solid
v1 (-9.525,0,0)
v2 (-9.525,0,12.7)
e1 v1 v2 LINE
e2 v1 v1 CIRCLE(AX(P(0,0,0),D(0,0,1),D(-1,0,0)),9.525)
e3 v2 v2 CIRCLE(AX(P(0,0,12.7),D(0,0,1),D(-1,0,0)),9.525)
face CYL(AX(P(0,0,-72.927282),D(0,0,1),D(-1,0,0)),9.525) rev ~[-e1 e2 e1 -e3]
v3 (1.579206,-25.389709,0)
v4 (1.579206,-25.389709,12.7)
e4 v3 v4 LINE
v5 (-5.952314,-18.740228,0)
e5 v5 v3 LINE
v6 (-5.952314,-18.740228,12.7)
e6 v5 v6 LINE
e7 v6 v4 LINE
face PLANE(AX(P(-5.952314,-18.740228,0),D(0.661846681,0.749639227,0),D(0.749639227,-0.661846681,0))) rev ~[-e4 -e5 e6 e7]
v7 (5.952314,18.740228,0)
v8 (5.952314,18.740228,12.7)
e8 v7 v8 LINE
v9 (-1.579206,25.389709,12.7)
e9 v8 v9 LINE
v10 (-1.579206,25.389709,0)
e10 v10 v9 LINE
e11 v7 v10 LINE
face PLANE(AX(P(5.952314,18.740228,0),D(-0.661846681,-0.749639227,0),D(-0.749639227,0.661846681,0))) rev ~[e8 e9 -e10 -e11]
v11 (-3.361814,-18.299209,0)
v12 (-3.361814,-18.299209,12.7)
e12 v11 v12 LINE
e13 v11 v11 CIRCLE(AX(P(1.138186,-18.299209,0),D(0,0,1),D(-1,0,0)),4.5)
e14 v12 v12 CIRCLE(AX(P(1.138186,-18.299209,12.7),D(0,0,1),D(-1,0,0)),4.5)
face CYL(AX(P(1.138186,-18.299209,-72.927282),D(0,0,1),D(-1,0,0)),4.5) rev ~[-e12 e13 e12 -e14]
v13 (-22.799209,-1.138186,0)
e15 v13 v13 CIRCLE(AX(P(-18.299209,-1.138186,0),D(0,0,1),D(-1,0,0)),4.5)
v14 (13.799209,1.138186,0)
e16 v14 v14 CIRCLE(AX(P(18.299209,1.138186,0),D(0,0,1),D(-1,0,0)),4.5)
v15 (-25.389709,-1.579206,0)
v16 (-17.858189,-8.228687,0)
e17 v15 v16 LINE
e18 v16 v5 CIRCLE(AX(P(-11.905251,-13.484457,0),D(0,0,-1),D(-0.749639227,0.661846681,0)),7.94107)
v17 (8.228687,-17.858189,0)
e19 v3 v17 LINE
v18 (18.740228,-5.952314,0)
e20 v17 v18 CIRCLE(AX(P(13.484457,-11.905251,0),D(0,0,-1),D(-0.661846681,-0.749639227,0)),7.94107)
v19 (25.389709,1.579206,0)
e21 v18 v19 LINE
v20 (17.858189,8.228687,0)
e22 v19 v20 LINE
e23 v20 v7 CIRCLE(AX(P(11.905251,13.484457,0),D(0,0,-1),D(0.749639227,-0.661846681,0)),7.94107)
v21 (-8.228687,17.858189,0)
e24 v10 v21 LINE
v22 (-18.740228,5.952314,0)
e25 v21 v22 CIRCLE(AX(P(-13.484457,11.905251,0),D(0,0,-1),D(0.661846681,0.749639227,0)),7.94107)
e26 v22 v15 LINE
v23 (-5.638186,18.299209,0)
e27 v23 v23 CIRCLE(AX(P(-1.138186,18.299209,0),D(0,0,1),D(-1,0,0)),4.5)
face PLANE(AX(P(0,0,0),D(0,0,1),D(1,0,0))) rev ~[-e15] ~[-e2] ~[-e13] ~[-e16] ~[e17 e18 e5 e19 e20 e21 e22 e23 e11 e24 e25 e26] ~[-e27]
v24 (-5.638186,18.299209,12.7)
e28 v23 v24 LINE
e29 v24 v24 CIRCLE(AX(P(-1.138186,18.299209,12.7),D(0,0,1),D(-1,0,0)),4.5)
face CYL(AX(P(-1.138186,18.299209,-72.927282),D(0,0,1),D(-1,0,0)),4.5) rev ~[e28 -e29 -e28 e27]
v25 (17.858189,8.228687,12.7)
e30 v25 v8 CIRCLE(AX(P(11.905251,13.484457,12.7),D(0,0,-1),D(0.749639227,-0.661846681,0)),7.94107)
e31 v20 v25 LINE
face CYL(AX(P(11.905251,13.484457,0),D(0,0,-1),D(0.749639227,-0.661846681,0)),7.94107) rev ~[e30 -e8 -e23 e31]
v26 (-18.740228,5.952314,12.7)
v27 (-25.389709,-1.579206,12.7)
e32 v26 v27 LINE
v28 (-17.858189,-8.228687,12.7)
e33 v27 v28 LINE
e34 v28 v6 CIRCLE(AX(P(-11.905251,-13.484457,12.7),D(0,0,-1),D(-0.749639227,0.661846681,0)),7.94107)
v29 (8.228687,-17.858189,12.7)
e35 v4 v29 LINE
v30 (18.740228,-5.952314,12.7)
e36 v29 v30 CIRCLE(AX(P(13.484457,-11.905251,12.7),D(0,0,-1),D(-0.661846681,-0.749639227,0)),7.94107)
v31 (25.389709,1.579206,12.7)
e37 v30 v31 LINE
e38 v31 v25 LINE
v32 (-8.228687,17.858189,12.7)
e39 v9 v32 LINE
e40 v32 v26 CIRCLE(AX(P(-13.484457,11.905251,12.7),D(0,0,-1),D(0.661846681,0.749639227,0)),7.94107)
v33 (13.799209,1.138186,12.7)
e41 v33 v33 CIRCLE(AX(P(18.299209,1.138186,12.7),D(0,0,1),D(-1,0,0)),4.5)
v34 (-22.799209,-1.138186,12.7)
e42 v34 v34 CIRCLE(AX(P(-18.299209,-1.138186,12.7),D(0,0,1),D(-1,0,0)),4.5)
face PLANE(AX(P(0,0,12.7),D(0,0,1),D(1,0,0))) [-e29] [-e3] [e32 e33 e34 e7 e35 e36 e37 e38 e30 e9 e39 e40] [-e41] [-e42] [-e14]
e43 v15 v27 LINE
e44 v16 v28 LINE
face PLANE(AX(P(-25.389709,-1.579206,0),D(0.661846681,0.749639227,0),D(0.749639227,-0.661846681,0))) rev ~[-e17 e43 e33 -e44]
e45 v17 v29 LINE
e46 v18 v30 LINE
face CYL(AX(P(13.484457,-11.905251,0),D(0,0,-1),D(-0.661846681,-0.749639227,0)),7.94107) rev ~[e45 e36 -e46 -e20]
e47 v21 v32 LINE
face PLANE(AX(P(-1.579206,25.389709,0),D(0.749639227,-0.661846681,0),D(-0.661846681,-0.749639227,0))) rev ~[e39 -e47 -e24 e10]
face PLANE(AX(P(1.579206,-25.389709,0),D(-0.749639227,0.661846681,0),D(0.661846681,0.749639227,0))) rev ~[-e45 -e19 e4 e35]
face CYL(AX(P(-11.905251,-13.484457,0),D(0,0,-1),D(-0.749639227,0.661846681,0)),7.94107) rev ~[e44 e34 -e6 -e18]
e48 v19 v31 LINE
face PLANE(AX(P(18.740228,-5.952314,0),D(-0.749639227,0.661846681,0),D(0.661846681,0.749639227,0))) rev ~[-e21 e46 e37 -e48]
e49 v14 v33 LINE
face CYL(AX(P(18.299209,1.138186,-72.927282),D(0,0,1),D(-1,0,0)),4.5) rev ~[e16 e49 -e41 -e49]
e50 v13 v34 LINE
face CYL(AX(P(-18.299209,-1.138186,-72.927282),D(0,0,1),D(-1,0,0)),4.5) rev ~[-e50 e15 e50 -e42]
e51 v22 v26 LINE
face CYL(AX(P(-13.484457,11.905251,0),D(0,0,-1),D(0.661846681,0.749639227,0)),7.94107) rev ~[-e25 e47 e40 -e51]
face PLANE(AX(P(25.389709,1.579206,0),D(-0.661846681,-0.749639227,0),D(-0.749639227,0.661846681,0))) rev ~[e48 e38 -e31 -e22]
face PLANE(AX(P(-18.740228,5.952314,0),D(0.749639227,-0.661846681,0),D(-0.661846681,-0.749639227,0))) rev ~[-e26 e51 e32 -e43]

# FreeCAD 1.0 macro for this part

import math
import FreeCAD as App
import Part
import Sketcher

V = App.Vector
Q = App.Units.Quantity

doc = App.newDocument("Part")
body = doc.addObject("PartDesign::Body", "Body")

sketch1 = body.newObject("Sketcher::SketchObject", "Sketch")
sketch1.AttachmentSupport = (doc.getObject("XY_Plane"), [""])
sketch1.MapMode = "FlatFace"
sketch1.addGeometry([
    Part.LineSegment(V(5.952314, 18.740228, 0), V(-1.579206, 25.389709, 0)),
    Part.LineSegment(V(-1.579206, 25.389709, 0), V(-8.228687, 17.858189, 0)),
    Part.ArcOfCircle(Part.Circle(V(-13.484457, 11.905251, 0), V(0, 0, 1), 7.94107), math.radians(-131.440864), math.radians(48.559136)),
    Part.LineSegment(V(-18.740228, 5.952314, 0), V(-25.389709, -1.579206, 0)),
    Part.LineSegment(V(-25.389709, -1.579206, 0), V(-17.858189, -8.228687, 0)),
    Part.ArcOfCircle(Part.Circle(V(-11.905251, -13.484457, 0), V(0, 0, 1), 7.94107), math.radians(-41.440864), math.radians(138.559136)),
    Part.LineSegment(V(-5.952314, -18.740228, 0), V(1.579206, -25.389709, 0)),
    Part.LineSegment(V(1.579206, -25.389709, 0), V(8.228687, -17.858189, 0)),
    Part.ArcOfCircle(Part.Circle(V(13.484457, -11.905251, 0), V(0, 0, 1), 7.94107), math.radians(48.559136), math.radians(228.559136)),
    Part.LineSegment(V(18.740228, -5.952314, 0), V(25.389709, 1.579206, 0)),
    Part.LineSegment(V(25.389709, 1.579206, 0), V(17.858189, 8.228687, 0)),
    Part.ArcOfCircle(Part.Circle(V(11.905251, 13.484457, 0), V(0, 0, 1), 7.94107), math.radians(138.559136), math.radians(318.559136)),
], False)
sketch1.addConstraint([
    Sketcher.Constraint("Coincident", 0, 2, 1, 1),
    Sketcher.Constraint("Coincident", 1, 2, 2, 2),
    Sketcher.Constraint("Coincident", 2, 1, 3, 1),
    Sketcher.Constraint("Coincident", 3, 2, 4, 1),
    Sketcher.Constraint("Coincident", 4, 2, 5, 2),
    Sketcher.Constraint("Coincident", 5, 1, 6, 1),
    Sketcher.Constraint("Coincident", 6, 2, 7, 1),
    Sketcher.Constraint("Coincident", 7, 2, 8, 2),
    Sketcher.Constraint("Coincident", 8, 1, 9, 1),
    Sketcher.Constraint("Coincident", 9, 2, 10, 1),
    Sketcher.Constraint("Coincident", 10, 2, 11, 2),
    Sketcher.Constraint("Coincident", 11, 1, 0, 1),
    Sketcher.Constraint("Radius", 2, 7.94107),
    Sketcher.Constraint("Radius", 5, 7.94107),
    Sketcher.Constraint("Radius", 8, 7.94107),
    Sketcher.Constraint("Radius", 11, 7.94107),
    Sketcher.Constraint("DistanceY", 4, 2, 2, 1, 14.181001),
    Sketcher.Constraint("DistanceX", 5, 1, 7, 2, 14.181001),
    Sketcher.Constraint("DistanceY", 8, 1, 10, 2, 14.181001),
    Sketcher.Constraint("DistanceX", 1, 2, 11, 1, 14.181001),
    Sketcher.Constraint("Distance", 0, 10.046859),
    Sketcher.Constraint("Distance", 1, 10.046859),
    Sketcher.Constraint("Distance", 3, 10.046859),
    Sketcher.Constraint("Distance", 4, 10.046859),
    Sketcher.Constraint("Distance", 6, 10.046859),
    Sketcher.Constraint("Distance", 7, 10.046859),
    Sketcher.Constraint("Distance", 9, 10.046859),
    Sketcher.Constraint("Distance", 10, 10.046859),
    Sketcher.Constraint("DistanceY", -1, 1, 2, 3, 11.905251),
    Sketcher.Constraint("DistanceX", 5, 3, -1, 1, 11.905251),
    Sketcher.Constraint("DistanceY", 8, 3, -1, 1, 11.905251),
    Sketcher.Constraint("DistanceX", -1, 1, 11, 3, 11.905251),
    Sketcher.Constraint("DistanceY", -1, 1, 0, 2, 25.389709),
    Sketcher.Constraint("DistanceY", -1, 1, 1, 2, 17.858189),
    Sketcher.Constraint("DistanceX", 2, 1, -1, 1, 18.740228),
    Sketcher.Constraint("DistanceX", 3, 2, -1, 1, 25.389709),
    Sketcher.Constraint("DistanceY", 5, 1, -1, 1, 18.740228),
    Sketcher.Constraint("DistanceY", 6, 2, -1, 1, 25.389709),
    Sketcher.Constraint("DistanceX", -1, 1, 8, 1, 18.740228),
    Sketcher.Constraint("DistanceX", -1, 1, 9, 2, 25.389709),
])
pad1 = body.newObject("PartDesign::Pad", "Pad")
pad1.Profile = sketch1
pad1.Length = Q("0.5 in")

sketch2 = body.newObject("Sketcher::SketchObject", "Sketch001")
sketch2.AttachmentSupport = (doc.getObject("XY_Plane"), [""])
sketch2.MapMode = "FlatFace"
sketch2.addGeometry(Part.Circle(V(0, 0, 0), V(0, 0, 1), 10), False)
sketch2.addConstraint([
    Sketcher.Constraint("Coincident", 0, 3, -1, 1),
    Sketcher.Constraint("Diameter", 0, Q("0.75 in")),
])
doc.recompute()
hole = body.newObject("PartDesign::Hole", "Hole")
hole.Profile = sketch2
hole.ThreadType = "None"
hole.Diameter = Q("0.75 in")
hole.DepthType = "ThroughAll"
hole.Reversed = True

sketch3 = body.newObject("Sketcher::SketchObject", "Sketch002")
sketch3.AttachmentSupport = (doc.getObject("XY_Plane"), [""])
sketch3.MapMode = "FlatFace"
sketch3.addGeometry([
    Part.Circle(V(18.3, 1.1, 0), V(0, 0, 1), 4.5),
    Part.Circle(V(-1.1, 18.3, 0), V(0, 0, 1), 4.5),
    Part.Circle(V(-18.3, -1.1, 0), V(0, 0, 1), 4.5),
    Part.Circle(V(1.1, -18.3, 0), V(0, 0, 1), 4.5),
], False)
sketch3.addConstraint([
    Sketcher.Constraint("Equal", 0, 1),
    Sketcher.Constraint("Equal", 1, 2),
    Sketcher.Constraint("Equal", 2, 3),
    Sketcher.Constraint("Symmetric", 0, 3, 2, 3, -1, 1),
    Sketcher.Constraint("Symmetric", 1, 3, 3, 3, -1, 1),
    Sketcher.Constraint("Diameter", 0, 9.0),
    Sketcher.Constraint("DistanceX", -1, 1, 0, 3, 18.299209),
    Sketcher.Constraint("DistanceY", -1, 1, 1, 3, 18.299209),
    Sketcher.Constraint("DistanceY", -1, 1, 0, 3, 1.138186),
    Sketcher.Constraint("DistanceX", 1, 3, -1, 1, 1.138186),
])
doc.recompute()
hole2 = body.newObject("PartDesign::Hole", "Hole001")
hole2.Profile = sketch3
hole2.ThreadType = "None"
hole2.Diameter = 9
hole2.DepthType = "ThroughAll"
hole2.Reversed = True

doc.recompute()
